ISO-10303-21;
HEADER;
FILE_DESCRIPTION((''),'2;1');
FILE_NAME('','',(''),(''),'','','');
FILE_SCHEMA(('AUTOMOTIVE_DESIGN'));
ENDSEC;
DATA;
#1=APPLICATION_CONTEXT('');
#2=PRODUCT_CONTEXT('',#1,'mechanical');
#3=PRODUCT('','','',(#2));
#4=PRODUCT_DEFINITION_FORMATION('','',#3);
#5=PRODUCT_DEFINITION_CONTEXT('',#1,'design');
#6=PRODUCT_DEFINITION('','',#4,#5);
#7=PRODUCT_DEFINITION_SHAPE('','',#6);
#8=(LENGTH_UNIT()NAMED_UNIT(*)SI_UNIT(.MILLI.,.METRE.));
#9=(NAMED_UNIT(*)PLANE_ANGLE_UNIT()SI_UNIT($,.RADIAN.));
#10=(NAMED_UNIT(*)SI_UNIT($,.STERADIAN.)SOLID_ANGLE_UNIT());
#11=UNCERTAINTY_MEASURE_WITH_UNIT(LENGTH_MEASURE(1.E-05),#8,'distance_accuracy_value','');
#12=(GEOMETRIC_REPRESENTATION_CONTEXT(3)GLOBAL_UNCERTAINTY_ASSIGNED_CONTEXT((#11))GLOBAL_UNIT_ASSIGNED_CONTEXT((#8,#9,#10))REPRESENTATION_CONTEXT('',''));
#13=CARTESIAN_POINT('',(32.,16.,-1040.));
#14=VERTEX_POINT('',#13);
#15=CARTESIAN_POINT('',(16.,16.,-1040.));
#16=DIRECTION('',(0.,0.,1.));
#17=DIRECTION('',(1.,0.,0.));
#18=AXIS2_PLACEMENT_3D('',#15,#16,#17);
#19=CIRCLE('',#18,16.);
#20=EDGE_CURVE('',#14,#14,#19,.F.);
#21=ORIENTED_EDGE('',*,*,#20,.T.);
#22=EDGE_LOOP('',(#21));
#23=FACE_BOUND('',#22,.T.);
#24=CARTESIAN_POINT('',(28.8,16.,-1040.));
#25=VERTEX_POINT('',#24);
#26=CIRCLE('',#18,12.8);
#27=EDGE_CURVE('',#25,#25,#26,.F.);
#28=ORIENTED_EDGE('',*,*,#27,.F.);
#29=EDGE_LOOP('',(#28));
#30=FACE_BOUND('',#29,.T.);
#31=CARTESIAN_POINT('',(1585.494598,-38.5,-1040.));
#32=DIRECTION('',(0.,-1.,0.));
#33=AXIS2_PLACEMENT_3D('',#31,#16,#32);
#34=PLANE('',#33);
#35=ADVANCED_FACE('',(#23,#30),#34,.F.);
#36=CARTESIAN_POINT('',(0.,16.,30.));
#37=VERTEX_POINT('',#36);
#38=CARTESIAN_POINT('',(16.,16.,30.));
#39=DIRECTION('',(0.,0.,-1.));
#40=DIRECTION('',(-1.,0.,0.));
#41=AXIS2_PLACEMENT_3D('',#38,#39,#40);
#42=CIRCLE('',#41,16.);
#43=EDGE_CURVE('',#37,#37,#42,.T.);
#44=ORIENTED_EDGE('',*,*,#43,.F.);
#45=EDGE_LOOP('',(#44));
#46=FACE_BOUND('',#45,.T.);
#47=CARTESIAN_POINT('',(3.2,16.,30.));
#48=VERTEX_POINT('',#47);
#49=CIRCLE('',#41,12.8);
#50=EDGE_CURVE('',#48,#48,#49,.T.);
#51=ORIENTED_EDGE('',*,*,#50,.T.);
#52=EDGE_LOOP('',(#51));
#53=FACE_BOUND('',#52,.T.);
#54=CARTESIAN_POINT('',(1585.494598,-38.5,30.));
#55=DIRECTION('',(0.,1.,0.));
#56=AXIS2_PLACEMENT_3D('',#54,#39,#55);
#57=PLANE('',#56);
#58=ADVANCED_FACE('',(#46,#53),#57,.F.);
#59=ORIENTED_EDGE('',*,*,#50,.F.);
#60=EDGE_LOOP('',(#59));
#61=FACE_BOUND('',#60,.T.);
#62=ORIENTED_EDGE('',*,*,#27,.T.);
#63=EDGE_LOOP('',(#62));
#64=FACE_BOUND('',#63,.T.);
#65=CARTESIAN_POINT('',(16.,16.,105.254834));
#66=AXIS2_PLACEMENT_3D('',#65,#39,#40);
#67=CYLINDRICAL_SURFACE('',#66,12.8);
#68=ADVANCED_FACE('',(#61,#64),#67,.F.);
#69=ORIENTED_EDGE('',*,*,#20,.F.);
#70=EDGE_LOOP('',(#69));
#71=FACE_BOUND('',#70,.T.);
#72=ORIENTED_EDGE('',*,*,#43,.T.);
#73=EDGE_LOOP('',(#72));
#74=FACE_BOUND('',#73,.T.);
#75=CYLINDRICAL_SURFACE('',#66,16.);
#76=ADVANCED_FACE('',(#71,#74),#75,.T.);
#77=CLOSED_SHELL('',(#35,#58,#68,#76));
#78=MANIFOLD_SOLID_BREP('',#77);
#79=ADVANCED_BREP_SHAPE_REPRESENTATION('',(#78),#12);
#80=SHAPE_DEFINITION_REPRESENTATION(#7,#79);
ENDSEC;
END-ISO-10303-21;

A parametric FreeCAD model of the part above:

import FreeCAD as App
import Part
import Sketcher
from FreeCAD import Vector
Q = App.Units.Quantity

doc = App.newDocument("Part")
body = doc.addObject("PartDesign::Body", "Body")

# Sketch on XY plane
sketch1 = doc.addObject("Sketcher::SketchObject", "Sketch")
body.addObject(sketch1)
sketch1.AttachmentSupport = (doc.XY_Plane, [""])
sketch1.MapMode = "FlatFace"
sketch1.addGeometry(Part.Circle(Vector(16, 16, 0), Vector(0, 0, 1), 16), False)
sketch1.addGeometry(Part.Circle(Vector(16, 16, 0), Vector(0, 0, 1), 13), False)
sketch1.addConstraint(Sketcher.Constraint("Coincident", 1, 3, 0, 3))
sketch1.addConstraint(Sketcher.Constraint("Diameter", 0, Q("32 mm")))
sketch1.addConstraint(Sketcher.Constraint("Diameter", 1, Q("25.6 mm")))
sketch1.addConstraint(Sketcher.Constraint("DistanceX", -1, 1, 0, 3, Q("16 mm")))
sketch1.addConstraint(Sketcher.Constraint("DistanceY", -1, 1, 0, 3, Q("16 mm")))
pad1 = doc.addObject("PartDesign::Pad", "Pad")
body.addObject(pad1)
pad1.Profile = sketch1
pad1.Type = "TwoLengths"
pad1.Length = 30
pad1.Length2 = 1040

doc.recompute()
